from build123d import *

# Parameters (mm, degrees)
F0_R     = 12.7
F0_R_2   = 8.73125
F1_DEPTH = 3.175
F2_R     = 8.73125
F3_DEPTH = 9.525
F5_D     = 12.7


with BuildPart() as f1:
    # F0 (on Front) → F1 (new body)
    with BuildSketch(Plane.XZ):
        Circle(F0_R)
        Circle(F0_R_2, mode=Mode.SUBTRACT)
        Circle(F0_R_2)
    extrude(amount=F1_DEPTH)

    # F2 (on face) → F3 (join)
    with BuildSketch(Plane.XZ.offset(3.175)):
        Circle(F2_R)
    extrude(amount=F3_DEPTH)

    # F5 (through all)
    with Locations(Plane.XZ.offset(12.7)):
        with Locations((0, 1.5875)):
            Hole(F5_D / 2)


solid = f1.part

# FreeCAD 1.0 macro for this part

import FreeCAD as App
import Part
import Sketcher
Q = App.Units.Quantity

doc = App.newDocument("Part")
body = doc.addObject("PartDesign::Body", "Body")

sketch1 = body.newObject("Sketcher::SketchObject", "Sketch")
sketch1.AttachmentSupport = (doc.getObject("XZ_Plane"), [""])
sketch1.MapMode = "FlatFace"
sketch1.addGeometry(Part.Circle(App.Vector(0, 0, 0), App.Vector(0, 0, 1), 13), False)
sketch1.addConstraint(Sketcher.Constraint("Coincident", 0, 3, -1, 1))
sketch1.addConstraint(Sketcher.Constraint("Diameter", 0, Q("1 in")))
pad1 = body.newObject("PartDesign::Pad", "Pad")
pad1.Profile = sketch1
pad1.Length = Q("0.125 in")

sketch2 = body.newObject("Sketcher::SketchObject", "Sketch001")
sketch2.AttachmentSupport = (doc.getObject("XZ_Plane"), [""])
sketch2.MapMode = "FlatFace"
sketch2.AttachmentOffset = App.Placement(App.Vector(0, 0, 0.125 * 25.4), App.Rotation())
sketch2.addGeometry(Part.Circle(App.Vector(0, 0, 0), App.Vector(0, 0, 1), 9), False)
sketch2.addConstraint(Sketcher.Constraint("Coincident", 0, 3, -1, 1))
sketch2.addConstraint(Sketcher.Constraint("Diameter", 0, Q("0.6875 in")))
pad2 = body.newObject("PartDesign::Pad", "Pad001")
pad2.Profile = sketch2
pad2.Length = Q("0.375 in")

sketch3 = body.newObject("Sketcher::SketchObject", "Sketch002")
sketch3.AttachmentSupport = (doc.getObject("XZ_Plane"), [""])
sketch3.MapMode = "FlatFace"
sketch3.AttachmentOffset = App.Placement(App.Vector(0, 0, 0.5 * 25.4), App.Rotation())
sketch3.addGeometry(Part.Circle(App.Vector(0, 2, 0), App.Vector(0, 0, 1), 6), False)
sketch3.addConstraint(Sketcher.Constraint("PointOnObject", 0, 3, -2))
sketch3.addConstraint(Sketcher.Constraint("Diameter", 0, Q("0.5 in")))
sketch3.addConstraint(Sketcher.Constraint("DistanceY", -1, 1, 0, 3, Q("0.0625 in")))
doc.recompute()
hole = body.newObject("PartDesign::Hole", "Hole")
hole.Profile = sketch3
hole.ThreadType = "None"
hole.Diameter = Q("0.5 in")
hole.DepthType = "ThroughAll"

doc.recompute()
